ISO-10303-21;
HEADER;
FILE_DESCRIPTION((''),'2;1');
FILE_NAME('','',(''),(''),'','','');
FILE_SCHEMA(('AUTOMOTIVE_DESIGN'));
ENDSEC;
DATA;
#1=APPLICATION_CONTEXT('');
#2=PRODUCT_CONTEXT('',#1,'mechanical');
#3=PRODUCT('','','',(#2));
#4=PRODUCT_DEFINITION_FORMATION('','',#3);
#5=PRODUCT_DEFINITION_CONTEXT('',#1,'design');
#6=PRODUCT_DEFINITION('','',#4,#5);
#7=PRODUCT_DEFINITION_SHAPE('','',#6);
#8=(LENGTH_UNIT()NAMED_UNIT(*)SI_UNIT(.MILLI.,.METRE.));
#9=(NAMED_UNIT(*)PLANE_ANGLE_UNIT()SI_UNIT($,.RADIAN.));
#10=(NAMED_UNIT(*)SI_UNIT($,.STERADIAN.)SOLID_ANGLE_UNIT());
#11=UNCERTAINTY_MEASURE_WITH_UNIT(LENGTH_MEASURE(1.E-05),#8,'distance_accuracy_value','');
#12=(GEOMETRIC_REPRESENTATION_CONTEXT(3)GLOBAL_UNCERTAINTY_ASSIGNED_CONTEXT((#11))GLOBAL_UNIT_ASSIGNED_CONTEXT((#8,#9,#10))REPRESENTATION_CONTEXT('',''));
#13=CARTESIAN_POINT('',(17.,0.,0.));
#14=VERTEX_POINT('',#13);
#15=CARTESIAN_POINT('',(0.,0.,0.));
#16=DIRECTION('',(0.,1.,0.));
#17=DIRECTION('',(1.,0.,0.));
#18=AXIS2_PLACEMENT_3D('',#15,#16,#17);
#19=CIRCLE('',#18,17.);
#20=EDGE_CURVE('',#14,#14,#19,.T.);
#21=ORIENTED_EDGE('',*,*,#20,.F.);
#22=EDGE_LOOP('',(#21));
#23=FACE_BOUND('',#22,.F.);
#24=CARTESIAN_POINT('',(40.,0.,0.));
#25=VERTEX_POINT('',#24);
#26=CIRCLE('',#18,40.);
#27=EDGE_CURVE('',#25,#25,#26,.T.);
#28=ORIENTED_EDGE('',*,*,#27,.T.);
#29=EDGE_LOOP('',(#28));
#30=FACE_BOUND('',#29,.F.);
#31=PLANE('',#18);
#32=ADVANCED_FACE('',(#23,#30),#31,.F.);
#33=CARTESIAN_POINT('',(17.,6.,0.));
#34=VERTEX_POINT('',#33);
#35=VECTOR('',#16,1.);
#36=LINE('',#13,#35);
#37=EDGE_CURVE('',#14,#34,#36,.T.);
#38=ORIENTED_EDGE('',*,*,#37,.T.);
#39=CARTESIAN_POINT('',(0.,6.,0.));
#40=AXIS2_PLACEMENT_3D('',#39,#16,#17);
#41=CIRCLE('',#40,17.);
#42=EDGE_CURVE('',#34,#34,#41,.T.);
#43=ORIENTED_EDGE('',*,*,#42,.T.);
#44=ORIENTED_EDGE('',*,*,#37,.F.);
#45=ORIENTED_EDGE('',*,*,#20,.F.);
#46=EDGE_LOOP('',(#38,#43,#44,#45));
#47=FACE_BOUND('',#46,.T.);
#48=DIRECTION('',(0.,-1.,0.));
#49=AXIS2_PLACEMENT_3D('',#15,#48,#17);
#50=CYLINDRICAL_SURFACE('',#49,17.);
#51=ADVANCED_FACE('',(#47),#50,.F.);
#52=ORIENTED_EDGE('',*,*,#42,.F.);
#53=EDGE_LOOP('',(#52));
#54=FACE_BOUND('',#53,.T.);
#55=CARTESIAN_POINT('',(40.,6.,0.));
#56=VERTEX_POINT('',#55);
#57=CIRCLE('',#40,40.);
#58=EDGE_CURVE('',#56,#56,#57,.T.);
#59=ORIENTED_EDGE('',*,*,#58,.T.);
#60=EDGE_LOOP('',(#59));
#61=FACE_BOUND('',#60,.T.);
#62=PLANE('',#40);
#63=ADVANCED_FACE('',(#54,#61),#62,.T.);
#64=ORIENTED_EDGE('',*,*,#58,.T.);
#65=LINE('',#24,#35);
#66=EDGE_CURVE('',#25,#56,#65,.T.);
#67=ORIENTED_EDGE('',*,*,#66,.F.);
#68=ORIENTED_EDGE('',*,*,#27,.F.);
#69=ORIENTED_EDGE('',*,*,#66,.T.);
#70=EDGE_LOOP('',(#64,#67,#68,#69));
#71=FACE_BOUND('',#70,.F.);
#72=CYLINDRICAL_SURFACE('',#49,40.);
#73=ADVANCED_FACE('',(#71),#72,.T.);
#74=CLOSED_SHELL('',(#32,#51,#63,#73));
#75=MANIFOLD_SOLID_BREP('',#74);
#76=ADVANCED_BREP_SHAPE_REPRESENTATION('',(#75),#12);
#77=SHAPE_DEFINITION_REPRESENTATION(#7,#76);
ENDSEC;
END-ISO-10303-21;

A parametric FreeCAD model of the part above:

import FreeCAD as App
import Part
import Sketcher
Q = App.Units.Quantity

doc = App.newDocument("Part")
params = doc.addObject("Spreadsheet::Sheet", "Params")
for row, (alias, value) in enumerate([
    ("sketch1_diameter", "80 mm"),
    ("sketch1_diameter2", "34 mm"),
    ("pad1_length", "6 mm"),
], start=1):
    params.set(f"A{row}", alias)
    params.set(f"B{row}", "=" + value)
    params.setAlias(f"B{row}", alias)

body = doc.addObject("PartDesign::Body", "Body")

# Sketch on XZ plane
sketch1 = body.newObject("Sketcher::SketchObject", "Sketch")
sketch1.AttachmentSupport = (doc.getObject("XZ_Plane"), [""])
sketch1.MapMode = "FlatFace"
sketch1.addGeometry(Part.Circle(App.Vector(0, 0, 0), App.Vector(0, 0, 1), 40), False)
sketch1.addGeometry(Part.Circle(App.Vector(0, 0, 0), App.Vector(0, 0, 1), 17), False)
sketch1.addConstraint(Sketcher.Constraint("Coincident", 0, 3, -1, 1))
sketch1.addConstraint(Sketcher.Constraint("Coincident", 1, 3, -1, 1))
sketch1.addConstraint(Sketcher.Constraint("Diameter", 0, Q("80 mm")))
sketch1.addConstraint(Sketcher.Constraint("Diameter", 1, Q("34 mm")))
sketch1.setExpression("Constraints[2]", "Params.sketch1_diameter")
sketch1.setExpression("Constraints[3]", "Params.sketch1_diameter2")
pad1 = body.newObject("PartDesign::Pad", "Pad")
pad1.Profile = sketch1
pad1.setExpression("Length", "Params.pad1_length")
pad1.Reversed = True

doc.recompute()
